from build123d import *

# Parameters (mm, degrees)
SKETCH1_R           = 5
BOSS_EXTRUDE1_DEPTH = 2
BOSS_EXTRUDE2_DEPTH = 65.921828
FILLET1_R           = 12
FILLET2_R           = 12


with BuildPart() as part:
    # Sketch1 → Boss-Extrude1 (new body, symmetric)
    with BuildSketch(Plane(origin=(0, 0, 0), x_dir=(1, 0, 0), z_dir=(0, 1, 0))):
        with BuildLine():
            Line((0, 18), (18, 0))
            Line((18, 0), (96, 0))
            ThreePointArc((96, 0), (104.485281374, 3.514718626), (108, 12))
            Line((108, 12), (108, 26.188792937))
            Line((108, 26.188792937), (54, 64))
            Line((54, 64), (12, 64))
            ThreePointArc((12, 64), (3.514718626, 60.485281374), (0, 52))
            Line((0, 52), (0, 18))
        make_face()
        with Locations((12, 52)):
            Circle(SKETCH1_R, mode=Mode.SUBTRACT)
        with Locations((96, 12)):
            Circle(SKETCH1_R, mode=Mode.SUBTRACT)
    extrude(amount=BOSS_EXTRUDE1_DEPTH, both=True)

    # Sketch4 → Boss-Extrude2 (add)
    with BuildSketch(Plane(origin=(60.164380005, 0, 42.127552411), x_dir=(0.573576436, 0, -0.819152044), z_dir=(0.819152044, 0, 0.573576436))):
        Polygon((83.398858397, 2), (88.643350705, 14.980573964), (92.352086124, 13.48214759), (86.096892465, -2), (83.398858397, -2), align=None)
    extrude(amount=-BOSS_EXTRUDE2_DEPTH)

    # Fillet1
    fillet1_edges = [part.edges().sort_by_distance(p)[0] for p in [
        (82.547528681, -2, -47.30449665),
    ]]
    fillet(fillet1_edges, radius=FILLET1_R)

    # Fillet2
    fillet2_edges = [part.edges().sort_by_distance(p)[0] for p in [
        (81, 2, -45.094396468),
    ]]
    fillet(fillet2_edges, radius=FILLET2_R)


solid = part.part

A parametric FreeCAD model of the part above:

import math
import FreeCAD as App
import Part
import Sketcher
Q = App.Units.Quantity


def edges_at(feature, points):
    """Names of the edges that pass closest to the given points."""
    edges = feature.Shape.Edges
    near = lambda p: min(range(len(edges)), key=lambda i: edges[i].distToShape(Part.Vertex(*p))[0])
    return sorted({f"Edge{near(p) + 1}" for p in points})


def add_polygon(sketch, points):
    """Adds a closed chain of lines whose ends are joined by coincident constraints."""
    first, n = sketch.GeometryCount, len(points)
    for a, b in zip(points, points[1:] + points[:1]):
        sketch.addGeometry(Part.LineSegment(App.Vector(*a, 0), App.Vector(*b, 0)), False)
    for i in range(n):
        sketch.addConstraint(Sketcher.Constraint("Coincident", first + i, 2, first + (i + 1) % n, 1))

doc = App.newDocument("Part")
body = doc.addObject("PartDesign::Body", "Body")

# Sketch on XZ plane
sketch1 = body.newObject("Sketcher::SketchObject", "Sketch")
sketch1.AttachmentSupport = (doc.getObject("XZ_Plane"), [""])
sketch1.MapMode = "FlatFace"
sketch1.addGeometry([
    Part.LineSegment(App.Vector(0, -18, 0), App.Vector(18, 0, 0)),  # 0
    Part.LineSegment(App.Vector(18, 0, 0), App.Vector(96, 0, 0)),  # 1
    Part.ArcOfCircle(Part.Circle(App.Vector(96, -12, 0), App.Vector(0, 0, 1), 12), math.radians(0), math.radians(90)),  # 2
    Part.LineSegment(App.Vector(108, -12, 0), App.Vector(108, -26.188793, 0)),  # 3
    Part.LineSegment(App.Vector(108, -26.188793, 0), App.Vector(54, -64, 0)),  # 4
    Part.LineSegment(App.Vector(54, -64, 0), App.Vector(12, -64, 0)),  # 5
    Part.ArcOfCircle(Part.Circle(App.Vector(12, -52, 0), App.Vector(0, 0, 1), 12), math.radians(-180), math.radians(-90)),  # 6
    Part.LineSegment(App.Vector(0, -52, 0), App.Vector(0, -18, 0)),  # 7
    Part.Circle(App.Vector(96, -12, 0), App.Vector(0, 0, 1), 5),  # 8
    Part.Circle(App.Vector(12, -52, 0), App.Vector(0, 0, 1), 5),  # 9
], False)
sketch1.addConstraint([
    Sketcher.Constraint("Coincident", 0, 2, 1, 1),
    Sketcher.Constraint("Tangent", 1, 2, 2, 2),
    Sketcher.Constraint("Tangent", 2, 1, 3, 1),
    Sketcher.Constraint("Coincident", 3, 2, 4, 1),
    Sketcher.Constraint("Coincident", 4, 2, 5, 1),
    Sketcher.Constraint("Tangent", 5, 2, 6, 2),
    Sketcher.Constraint("Tangent", 6, 1, 7, 1),
    Sketcher.Constraint("Coincident", 7, 2, 0, 1),
    Sketcher.Constraint("Horizontal", 1),
    Sketcher.Constraint("Vertical", 3),
    Sketcher.Constraint("Horizontal", 5),
    Sketcher.Constraint("Vertical", 7),
    Sketcher.Constraint("Coincident", 8, 3, 2, 3),
    Sketcher.Constraint("Coincident", 9, 3, 6, 3),
    Sketcher.Constraint("Equal", 2, 6),
    Sketcher.Constraint("Equal", 8, 9),
    Sketcher.Constraint("PointOnObject", 0, 2, -1),
    Sketcher.Constraint("PointOnObject", 6, 1, -2),
    Sketcher.Constraint("Diameter", 8, Q("10 mm")),
    Sketcher.Constraint("Radius", 2, Q("12 mm")),
    Sketcher.Constraint("DistanceX", 1, 1, 1, 2, Q("78 mm")),
    Sketcher.Constraint("DistanceX", 5, 2, 5, 1, Q("42 mm")),
    Sketcher.Constraint("DistanceY", 7, 1, 7, 2, Q("34 mm")),
    Sketcher.Constraint("Angle", 0, Q("45 deg")),
    Sketcher.Constraint("Angle", 4, Q("-145 deg")),
    Sketcher.Constraint("DistanceX", -1, 1, 2, 3, Q("96 mm")),
])
pad1 = body.newObject("PartDesign::Pad", "Pad")
pad1.Profile = sketch1
pad1.Length = 4
pad1.Midplane = True

# Sketch on an angled plane
sketch2 = body.newObject("Sketcher::SketchObject", "Sketch001")
sketch2.Placement = App.Placement(App.Vector(60.16438, 0, 42.127552), App.Rotation(App.Vector(0.573576436, 0, -0.819152044), App.Vector(0, 0.999999999, 0), App.Vector(0.819152044, 0, 0.573576436), "ZXY"))
add_polygon(sketch2, [(88.643351, 14.980574), (83.398858, 2), (83.398858, -2), (86.096892, -2), (92.352086, 13.482148)])  # lines 0-4
sketch2.addConstraint([
    Sketcher.Constraint("Vertical", 1),
    Sketcher.Constraint("Horizontal", 2),
    Sketcher.Constraint("Parallel", 0, 3),
    Sketcher.Constraint("Perpendicular", 3, 4),
    Sketcher.Constraint("DistanceY", 1, 2, 1, 1, Q("4 mm")),
    Sketcher.Constraint("Angle", 0, Q("-112 deg")),
    Sketcher.Constraint("Distance", 0, Q("14 mm")),
    Sketcher.Constraint("Distance", 4, Q("4 mm")),
    Sketcher.Constraint("DistanceY", -1, 1, 0, 2, Q("2 mm")),
    Sketcher.Constraint("DistanceX", -1, 1, 0, 2, Q("83.398858 mm")),
])
pad2 = body.newObject("PartDesign::Pad", "Pad001")
pad2.Profile = sketch2
pad2.Length = 65.921828
pad2.Reversed = True
doc.recompute()

fillet = body.newObject("PartDesign::Fillet", "Fillet")
fillet.Base = (pad2, edges_at(pad2, [(82.548, -2, -47.304)]))
fillet.Radius = 12
doc.recompute()

fillet2 = body.newObject("PartDesign::Fillet", "Fillet001")
fillet2.Base = (fillet, edges_at(fillet, [(81, 2, -45.094)]))
fillet2.Radius = 12

doc.recompute()
